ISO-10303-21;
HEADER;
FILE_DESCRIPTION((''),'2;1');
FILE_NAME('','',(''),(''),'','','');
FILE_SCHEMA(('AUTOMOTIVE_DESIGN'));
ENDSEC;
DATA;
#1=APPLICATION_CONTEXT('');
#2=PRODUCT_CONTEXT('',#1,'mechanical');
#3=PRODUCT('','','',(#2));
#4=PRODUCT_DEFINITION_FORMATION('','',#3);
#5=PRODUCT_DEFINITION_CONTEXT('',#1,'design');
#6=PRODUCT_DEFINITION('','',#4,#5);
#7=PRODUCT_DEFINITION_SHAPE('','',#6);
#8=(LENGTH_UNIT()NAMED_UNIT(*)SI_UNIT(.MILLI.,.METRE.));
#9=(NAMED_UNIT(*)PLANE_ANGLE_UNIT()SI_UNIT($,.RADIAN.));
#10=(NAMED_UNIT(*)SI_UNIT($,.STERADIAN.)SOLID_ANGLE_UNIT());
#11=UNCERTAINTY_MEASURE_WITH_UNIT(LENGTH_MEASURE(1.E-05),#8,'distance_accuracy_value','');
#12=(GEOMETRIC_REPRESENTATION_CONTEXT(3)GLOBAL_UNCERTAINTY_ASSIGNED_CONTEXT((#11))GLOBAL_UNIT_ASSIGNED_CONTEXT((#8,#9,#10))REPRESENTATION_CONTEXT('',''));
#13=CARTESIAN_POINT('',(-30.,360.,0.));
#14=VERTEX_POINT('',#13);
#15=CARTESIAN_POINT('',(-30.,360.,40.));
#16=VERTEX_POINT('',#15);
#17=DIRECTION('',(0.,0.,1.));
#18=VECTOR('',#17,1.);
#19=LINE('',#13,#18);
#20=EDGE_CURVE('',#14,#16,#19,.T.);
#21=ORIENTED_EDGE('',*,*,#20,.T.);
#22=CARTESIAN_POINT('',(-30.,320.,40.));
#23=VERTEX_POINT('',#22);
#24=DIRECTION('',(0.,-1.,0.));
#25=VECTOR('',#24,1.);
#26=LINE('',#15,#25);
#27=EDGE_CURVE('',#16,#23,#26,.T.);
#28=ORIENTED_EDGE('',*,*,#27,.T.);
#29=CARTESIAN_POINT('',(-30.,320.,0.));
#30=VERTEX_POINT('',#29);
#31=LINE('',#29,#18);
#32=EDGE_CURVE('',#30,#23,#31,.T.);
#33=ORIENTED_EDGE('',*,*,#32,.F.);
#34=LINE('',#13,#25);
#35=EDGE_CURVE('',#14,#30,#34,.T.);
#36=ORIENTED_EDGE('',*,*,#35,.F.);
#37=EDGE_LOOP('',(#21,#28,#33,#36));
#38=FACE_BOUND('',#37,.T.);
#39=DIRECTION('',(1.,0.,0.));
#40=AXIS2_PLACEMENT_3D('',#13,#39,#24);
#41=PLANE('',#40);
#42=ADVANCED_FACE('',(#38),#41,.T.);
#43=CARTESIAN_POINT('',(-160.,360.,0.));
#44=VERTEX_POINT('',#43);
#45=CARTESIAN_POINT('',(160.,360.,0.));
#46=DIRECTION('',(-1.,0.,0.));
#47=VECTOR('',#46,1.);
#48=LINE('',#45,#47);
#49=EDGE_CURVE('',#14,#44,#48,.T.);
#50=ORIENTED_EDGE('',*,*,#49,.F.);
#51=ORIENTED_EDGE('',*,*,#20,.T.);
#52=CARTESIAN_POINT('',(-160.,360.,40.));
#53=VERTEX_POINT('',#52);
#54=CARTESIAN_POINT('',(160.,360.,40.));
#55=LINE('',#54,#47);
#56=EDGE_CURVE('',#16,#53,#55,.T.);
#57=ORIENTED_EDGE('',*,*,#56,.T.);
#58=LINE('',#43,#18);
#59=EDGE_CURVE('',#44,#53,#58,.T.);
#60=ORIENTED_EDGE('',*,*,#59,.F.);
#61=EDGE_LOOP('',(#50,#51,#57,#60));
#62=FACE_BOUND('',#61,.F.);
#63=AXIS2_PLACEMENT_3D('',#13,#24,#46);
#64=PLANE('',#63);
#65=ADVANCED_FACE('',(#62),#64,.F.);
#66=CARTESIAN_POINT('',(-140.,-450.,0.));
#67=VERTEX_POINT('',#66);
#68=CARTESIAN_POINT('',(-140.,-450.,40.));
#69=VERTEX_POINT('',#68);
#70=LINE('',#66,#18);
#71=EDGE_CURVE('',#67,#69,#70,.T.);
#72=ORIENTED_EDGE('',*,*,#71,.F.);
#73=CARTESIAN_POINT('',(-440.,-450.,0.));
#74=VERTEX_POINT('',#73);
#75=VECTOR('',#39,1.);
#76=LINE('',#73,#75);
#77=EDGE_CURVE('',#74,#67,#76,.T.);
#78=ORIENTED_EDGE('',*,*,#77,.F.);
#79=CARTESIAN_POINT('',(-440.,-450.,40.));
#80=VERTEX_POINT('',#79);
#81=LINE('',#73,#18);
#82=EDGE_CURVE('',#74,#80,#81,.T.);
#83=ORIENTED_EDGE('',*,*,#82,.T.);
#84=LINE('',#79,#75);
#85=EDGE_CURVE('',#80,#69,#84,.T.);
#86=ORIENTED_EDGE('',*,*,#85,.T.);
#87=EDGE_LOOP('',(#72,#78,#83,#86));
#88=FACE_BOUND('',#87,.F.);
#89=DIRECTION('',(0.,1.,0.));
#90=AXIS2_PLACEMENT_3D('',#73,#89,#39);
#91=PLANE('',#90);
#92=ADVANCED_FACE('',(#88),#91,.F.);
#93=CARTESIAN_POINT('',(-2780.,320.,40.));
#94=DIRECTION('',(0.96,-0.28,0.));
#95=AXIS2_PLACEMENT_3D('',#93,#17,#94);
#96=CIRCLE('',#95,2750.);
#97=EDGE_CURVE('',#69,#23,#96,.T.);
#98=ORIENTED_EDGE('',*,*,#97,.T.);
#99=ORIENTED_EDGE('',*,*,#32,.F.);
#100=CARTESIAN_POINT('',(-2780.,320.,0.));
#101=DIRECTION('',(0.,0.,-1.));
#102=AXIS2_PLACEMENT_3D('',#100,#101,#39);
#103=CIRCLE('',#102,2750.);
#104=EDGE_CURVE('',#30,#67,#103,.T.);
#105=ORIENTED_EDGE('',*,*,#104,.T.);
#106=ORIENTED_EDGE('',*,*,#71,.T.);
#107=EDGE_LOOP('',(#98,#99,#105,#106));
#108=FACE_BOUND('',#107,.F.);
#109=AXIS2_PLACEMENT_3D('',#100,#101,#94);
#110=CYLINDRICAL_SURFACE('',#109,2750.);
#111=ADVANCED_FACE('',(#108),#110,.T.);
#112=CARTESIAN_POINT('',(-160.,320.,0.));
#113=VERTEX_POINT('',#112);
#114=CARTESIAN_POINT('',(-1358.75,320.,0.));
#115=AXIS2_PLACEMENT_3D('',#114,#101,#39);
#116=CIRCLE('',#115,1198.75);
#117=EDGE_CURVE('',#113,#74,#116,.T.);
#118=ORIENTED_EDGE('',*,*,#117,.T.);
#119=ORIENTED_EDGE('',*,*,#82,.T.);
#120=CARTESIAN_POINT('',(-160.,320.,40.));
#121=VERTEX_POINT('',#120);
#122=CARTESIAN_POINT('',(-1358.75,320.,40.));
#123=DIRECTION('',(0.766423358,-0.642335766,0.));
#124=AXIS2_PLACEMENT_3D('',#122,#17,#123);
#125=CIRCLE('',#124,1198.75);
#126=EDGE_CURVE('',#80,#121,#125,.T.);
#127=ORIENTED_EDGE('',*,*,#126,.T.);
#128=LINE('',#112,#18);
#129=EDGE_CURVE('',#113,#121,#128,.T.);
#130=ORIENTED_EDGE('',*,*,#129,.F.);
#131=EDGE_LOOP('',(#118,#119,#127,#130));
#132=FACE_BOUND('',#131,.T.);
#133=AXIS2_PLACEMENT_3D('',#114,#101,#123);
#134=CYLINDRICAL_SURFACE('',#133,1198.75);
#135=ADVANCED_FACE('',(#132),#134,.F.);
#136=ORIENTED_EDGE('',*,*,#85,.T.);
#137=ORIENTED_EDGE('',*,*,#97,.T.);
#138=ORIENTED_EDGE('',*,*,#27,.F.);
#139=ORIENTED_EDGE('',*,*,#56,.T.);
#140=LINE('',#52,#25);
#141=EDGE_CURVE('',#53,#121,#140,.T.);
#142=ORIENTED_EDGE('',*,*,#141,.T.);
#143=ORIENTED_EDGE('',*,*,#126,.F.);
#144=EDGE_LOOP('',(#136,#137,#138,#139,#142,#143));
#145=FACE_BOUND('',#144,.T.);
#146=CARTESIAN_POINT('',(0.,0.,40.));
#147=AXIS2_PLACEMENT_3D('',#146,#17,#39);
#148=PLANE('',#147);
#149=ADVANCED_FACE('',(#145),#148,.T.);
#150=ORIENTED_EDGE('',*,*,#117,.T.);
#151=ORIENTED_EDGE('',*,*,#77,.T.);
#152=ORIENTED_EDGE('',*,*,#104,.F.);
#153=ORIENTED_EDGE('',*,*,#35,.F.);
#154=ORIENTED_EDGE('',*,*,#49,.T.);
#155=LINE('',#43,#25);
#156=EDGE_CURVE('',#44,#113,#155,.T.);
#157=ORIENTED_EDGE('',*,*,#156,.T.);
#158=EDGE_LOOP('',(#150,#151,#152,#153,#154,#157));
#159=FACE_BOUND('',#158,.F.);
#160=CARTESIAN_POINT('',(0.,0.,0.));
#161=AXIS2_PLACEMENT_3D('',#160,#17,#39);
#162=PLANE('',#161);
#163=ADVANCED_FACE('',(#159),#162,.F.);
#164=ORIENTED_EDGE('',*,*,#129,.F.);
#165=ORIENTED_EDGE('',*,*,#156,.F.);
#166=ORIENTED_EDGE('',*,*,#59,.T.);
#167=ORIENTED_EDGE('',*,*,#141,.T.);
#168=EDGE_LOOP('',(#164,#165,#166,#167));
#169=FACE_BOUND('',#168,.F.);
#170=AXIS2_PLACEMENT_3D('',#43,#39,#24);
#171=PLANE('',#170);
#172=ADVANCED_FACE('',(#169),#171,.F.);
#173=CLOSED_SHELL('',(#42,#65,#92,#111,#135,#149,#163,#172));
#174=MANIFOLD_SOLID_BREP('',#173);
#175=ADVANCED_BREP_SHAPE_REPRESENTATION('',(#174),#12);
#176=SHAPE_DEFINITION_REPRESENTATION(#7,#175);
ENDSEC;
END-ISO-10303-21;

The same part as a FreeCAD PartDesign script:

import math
import FreeCAD as App
import Part
import Sketcher

doc = App.newDocument("Part")
body = doc.addObject("PartDesign::Body", "Body")

# Sketch on XY plane
sketch1 = doc.addObject("Sketcher::SketchObject", "Sketch")
body.addObject(sketch1)
sketch1.AttachmentSupport = (doc.XY_Plane, [""])
sketch1.MapMode = "FlatFace"
sketch1.addGeometry([
    Part.LineSegment(App.Vector(-440, -450, 0), App.Vector(-140, -450, 0)),  # 0
    Part.ArcOfCircle(Part.Circle(App.Vector(-2780, 320, 0), App.Vector(0, 0, 1), 2750), math.radians(-16.260205), math.radians(0)),  # 1
    Part.LineSegment(App.Vector(-30, 320, 0), App.Vector(-30, 360, 0)),  # 2
    Part.LineSegment(App.Vector(-30, 360, 0), App.Vector(-160, 360, 0)),  # 3
    Part.LineSegment(App.Vector(-160, 360, 0), App.Vector(-160, 320, 0)),  # 4
    Part.ArcOfCircle(Part.Circle(App.Vector(-1358.75, 320, 0), App.Vector(0, 0, 1), 1198.75), math.radians(-39.966213), math.radians(0)),  # 5
], False)
sketch1.addConstraint([
    Sketcher.Constraint("Coincident", 0, 2, 1, 1),
    Sketcher.Constraint("Tangent", 1, 2, 2, 1),
    Sketcher.Constraint("Coincident", 2, 2, 3, 1),
    Sketcher.Constraint("Coincident", 3, 2, 4, 1),
    Sketcher.Constraint("Tangent", 4, 2, 5, 2),
    Sketcher.Constraint("Coincident", 5, 1, 0, 1),
    Sketcher.Constraint("Horizontal", 0),
    Sketcher.Constraint("Vertical", 2),
    Sketcher.Constraint("Horizontal", 3),
    Sketcher.Constraint("Vertical", 4),
    Sketcher.Constraint("Horizontal", 1, 3, 5, 3),
    Sketcher.Constraint("DistanceX", 0, 1, 0, 2, 300.0),
    Sketcher.Constraint("DistanceX", 3, 2, 3, 1, 130.0),
    Sketcher.Constraint("DistanceY", 2, 1, 2, 2, 40.0),
    Sketcher.Constraint("DistanceY", -1, 1, 1, 3, 320.0),
    Sketcher.Constraint("DistanceX", 0, 2, -1, 1, 140.0),
    Sketcher.Constraint("Radius", 1, 2750.0),
    Sketcher.Constraint("Radius", 5, 1198.75),
])
pad1 = doc.addObject("PartDesign::Pad", "Pad")
body.addObject(pad1)
pad1.Profile = sketch1
pad1.Length = 40

doc.recompute()
